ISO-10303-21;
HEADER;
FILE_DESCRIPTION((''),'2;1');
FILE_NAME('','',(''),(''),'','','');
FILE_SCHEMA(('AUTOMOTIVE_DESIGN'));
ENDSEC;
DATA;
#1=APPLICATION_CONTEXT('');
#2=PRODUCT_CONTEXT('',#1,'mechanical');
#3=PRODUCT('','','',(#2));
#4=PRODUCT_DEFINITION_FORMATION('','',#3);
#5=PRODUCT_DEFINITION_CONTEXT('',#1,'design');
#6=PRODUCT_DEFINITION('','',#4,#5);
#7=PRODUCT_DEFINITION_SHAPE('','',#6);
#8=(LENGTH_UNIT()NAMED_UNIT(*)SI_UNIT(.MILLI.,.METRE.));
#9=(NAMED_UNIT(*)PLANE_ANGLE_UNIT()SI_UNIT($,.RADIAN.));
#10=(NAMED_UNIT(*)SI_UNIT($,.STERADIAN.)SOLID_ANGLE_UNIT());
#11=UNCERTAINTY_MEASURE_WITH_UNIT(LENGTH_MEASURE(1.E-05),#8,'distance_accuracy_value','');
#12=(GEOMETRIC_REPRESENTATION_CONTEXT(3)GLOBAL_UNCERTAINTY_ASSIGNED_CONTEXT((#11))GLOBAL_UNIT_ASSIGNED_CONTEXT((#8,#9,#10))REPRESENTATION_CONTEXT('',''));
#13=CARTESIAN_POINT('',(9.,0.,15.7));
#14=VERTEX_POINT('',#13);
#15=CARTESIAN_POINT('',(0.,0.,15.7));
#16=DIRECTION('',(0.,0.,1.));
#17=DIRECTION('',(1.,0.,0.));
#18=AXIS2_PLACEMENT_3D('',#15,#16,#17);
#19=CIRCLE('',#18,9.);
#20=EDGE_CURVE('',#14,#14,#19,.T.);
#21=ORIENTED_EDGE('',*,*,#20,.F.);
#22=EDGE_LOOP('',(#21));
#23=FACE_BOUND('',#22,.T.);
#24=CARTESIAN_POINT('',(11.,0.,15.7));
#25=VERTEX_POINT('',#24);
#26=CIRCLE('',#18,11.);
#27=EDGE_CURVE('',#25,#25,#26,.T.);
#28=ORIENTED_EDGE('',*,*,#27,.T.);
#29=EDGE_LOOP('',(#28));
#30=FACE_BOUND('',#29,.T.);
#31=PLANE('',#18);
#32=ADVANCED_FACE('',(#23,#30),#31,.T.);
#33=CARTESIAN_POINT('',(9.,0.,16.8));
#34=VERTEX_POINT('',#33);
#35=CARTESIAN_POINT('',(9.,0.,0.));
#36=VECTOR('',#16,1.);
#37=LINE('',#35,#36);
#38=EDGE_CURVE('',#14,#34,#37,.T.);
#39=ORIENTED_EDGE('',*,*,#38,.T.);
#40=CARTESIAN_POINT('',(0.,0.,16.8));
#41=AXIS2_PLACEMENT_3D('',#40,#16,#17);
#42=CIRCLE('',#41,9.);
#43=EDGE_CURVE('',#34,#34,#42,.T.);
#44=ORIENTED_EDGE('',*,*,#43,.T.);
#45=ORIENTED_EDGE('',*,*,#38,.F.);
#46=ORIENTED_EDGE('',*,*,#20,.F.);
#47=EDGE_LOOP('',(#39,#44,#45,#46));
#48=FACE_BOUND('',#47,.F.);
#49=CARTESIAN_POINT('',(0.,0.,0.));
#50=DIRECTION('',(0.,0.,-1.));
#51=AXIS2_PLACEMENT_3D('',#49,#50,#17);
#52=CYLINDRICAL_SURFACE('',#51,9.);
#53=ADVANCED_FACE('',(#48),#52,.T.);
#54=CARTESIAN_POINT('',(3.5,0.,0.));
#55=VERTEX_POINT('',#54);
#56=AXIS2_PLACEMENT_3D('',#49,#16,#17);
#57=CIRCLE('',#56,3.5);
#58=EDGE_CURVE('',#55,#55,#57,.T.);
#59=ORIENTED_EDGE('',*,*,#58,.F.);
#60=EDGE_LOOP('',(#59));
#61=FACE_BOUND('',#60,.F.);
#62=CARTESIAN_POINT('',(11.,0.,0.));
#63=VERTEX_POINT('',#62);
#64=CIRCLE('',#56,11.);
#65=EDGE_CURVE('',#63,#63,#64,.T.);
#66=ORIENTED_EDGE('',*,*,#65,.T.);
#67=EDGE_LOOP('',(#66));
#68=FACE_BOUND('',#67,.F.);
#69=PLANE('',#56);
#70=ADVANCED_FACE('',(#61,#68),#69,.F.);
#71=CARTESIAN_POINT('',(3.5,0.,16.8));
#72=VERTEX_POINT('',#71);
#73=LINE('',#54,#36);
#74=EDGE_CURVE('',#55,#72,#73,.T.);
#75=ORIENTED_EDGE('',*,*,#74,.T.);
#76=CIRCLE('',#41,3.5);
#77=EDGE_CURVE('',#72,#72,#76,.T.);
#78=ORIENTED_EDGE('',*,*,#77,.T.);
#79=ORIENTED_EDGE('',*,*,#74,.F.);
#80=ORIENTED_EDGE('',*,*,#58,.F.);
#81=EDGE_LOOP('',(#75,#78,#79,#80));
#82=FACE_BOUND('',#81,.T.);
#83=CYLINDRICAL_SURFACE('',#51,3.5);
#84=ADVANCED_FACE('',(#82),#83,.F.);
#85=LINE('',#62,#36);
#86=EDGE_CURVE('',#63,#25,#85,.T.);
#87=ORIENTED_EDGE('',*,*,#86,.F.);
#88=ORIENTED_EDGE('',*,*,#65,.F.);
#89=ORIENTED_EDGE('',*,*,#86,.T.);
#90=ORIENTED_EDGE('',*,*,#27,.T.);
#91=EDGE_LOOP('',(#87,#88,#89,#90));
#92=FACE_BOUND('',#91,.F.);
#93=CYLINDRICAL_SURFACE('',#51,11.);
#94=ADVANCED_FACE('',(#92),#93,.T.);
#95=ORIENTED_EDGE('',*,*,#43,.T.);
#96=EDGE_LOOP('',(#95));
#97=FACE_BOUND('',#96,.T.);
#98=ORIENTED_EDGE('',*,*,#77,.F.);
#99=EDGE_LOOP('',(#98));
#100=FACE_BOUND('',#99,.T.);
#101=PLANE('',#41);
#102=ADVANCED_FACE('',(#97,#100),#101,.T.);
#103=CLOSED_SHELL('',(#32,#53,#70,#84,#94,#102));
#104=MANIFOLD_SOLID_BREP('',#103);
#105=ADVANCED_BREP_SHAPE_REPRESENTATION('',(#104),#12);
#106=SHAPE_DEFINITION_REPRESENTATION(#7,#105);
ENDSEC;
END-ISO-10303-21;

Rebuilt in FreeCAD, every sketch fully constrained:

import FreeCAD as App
import Part
import Sketcher
from FreeCAD import Vector
Q = App.Units.Quantity

doc = App.newDocument("Part")
body = doc.addObject("PartDesign::Body", "Body")

sketch1 = body.newObject("Sketcher::SketchObject", "Sketch")
sketch1.AttachmentSupport = (doc.getObject("XY_Plane"), [""])
sketch1.MapMode = "FlatFace"
sketch1.addGeometry(Part.Circle(Vector(0, 0, 0), Vector(0, 0, 1), 11), False)
sketch1.addGeometry(Part.Circle(Vector(0, 0, 0), Vector(0, 0, 1), 9), False)
sketch1.addConstraint(Sketcher.Constraint("Coincident", 0, 3, -1, 1))
sketch1.addConstraint(Sketcher.Constraint("Coincident", 1, 3, -1, 1))
sketch1.addConstraint(Sketcher.Constraint("Diameter", 0, Q("22 mm")))
sketch1.addConstraint(Sketcher.Constraint("Diameter", 1, Q("18 mm")))
pad1 = body.newObject("PartDesign::Pad", "Pad")
pad1.Profile = sketch1
pad1.Length = 15.7

sketch2 = body.newObject("Sketcher::SketchObject", "Sketch001")
sketch2.AttachmentSupport = (doc.getObject("XY_Plane"), [""])
sketch2.MapMode = "FlatFace"
sketch2.addGeometry(Part.Circle(Vector(0, 0, 0), Vector(0, 0, 1), 9), False)
sketch2.addGeometry(Part.Circle(Vector(0, 0, 0), Vector(0, 0, 1), 3.5), False)
sketch2.addConstraint(Sketcher.Constraint("Coincident", 0, 3, -1, 1))
sketch2.addConstraint(Sketcher.Constraint("Coincident", 1, 3, -1, 1))
sketch2.addConstraint(Sketcher.Constraint("Diameter", 0, Q("18 mm")))
sketch2.addConstraint(Sketcher.Constraint("Diameter", 1, Q("7 mm")))
pad2 = body.newObject("PartDesign::Pad", "Pad001")
pad2.Profile = sketch2
pad2.Length = 16.8

doc.recompute()
